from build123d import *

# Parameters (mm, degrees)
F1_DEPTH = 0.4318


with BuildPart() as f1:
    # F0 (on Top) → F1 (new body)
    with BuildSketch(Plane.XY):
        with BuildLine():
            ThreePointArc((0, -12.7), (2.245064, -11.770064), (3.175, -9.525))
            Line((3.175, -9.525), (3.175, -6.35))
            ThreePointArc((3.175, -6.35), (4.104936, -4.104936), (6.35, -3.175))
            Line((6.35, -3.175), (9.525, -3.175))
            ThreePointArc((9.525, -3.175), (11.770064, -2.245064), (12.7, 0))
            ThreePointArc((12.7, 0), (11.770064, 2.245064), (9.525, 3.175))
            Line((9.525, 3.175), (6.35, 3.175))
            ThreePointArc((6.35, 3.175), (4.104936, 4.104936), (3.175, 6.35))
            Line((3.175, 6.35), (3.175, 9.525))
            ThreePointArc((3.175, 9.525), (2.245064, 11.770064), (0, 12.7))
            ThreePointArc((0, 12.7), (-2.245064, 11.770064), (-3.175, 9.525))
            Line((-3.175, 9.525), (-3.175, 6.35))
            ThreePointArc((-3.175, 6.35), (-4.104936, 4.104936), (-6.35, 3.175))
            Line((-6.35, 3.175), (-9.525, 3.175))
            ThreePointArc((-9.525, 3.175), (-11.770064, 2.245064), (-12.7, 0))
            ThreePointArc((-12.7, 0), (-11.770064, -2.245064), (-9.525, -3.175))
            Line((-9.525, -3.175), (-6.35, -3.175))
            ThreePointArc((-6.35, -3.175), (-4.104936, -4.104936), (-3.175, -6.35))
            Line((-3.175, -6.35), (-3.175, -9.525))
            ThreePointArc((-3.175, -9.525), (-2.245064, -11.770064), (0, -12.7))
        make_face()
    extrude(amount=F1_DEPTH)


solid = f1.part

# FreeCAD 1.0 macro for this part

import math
import FreeCAD as App
import Part
import Sketcher
Q = App.Units.Quantity

doc = App.newDocument("Part")
body = doc.addObject("PartDesign::Body", "Body")

# Sketch on XY plane
sketch1 = body.newObject("Sketcher::SketchObject", "Sketch")
sketch1.AttachmentSupport = (doc.getObject("XY_Plane"), [""])
sketch1.MapMode = "FlatFace"
sketch1.addGeometry(Part.ArcOfCircle(Part.Circle(App.Vector(0, -9.5, 0), App.Vector(0, 0, 1), 3.2), math.radians(-90), math.radians(0)), False)
sketch1.addGeometry(Part.LineSegment(App.Vector(3.2, -9.5, 0), App.Vector(3.2, -6.3, 0)), False)
sketch1.addGeometry(Part.ArcOfCircle(Part.Circle(App.Vector(6.4, -6.4, 0), App.Vector(0, 0, 1), 3.2), math.radians(90), math.radians(180)), False)
sketch1.addGeometry(Part.LineSegment(App.Vector(6.3, -3.2, 0), App.Vector(9.5, -3.2, 0)), False)
sketch1.addGeometry(Part.ArcOfCircle(Part.Circle(App.Vector(9.5, 0, 0), App.Vector(0, 0, 1), 3.2), math.radians(-90), math.radians(0)), False)
sketch1.addGeometry(Part.ArcOfCircle(Part.Circle(App.Vector(9.5, 0, 0), App.Vector(0, 0, 1), 3.2), math.radians(0), math.radians(90)), False)
sketch1.addGeometry(Part.LineSegment(App.Vector(9.5, 3.2, 0), App.Vector(6.3, 3.2, 0)), False)
sketch1.addGeometry(Part.ArcOfCircle(Part.Circle(App.Vector(6.4, 6.4, 0), App.Vector(0, 0, 1), 3.2), math.radians(-180), math.radians(-90)), False)
sketch1.addGeometry(Part.LineSegment(App.Vector(3.2, 6.3, 0), App.Vector(3.2, 9.5, 0)), False)
sketch1.addGeometry(Part.ArcOfCircle(Part.Circle(App.Vector(0, 9.5, 0), App.Vector(0, 0, 1), 3.2), math.radians(0), math.radians(90)), False)
sketch1.addGeometry(Part.ArcOfCircle(Part.Circle(App.Vector(0, 9.5, 0), App.Vector(0, 0, 1), 3.2), math.radians(90), math.radians(180)), False)
sketch1.addGeometry(Part.LineSegment(App.Vector(-3.2, 9.5, 0), App.Vector(-3.2, 6.3, 0)), False)
sketch1.addGeometry(Part.ArcOfCircle(Part.Circle(App.Vector(-6.4, 6.4, 0), App.Vector(0, 0, 1), 3.2), math.radians(-90), math.radians(0)), False)
sketch1.addGeometry(Part.LineSegment(App.Vector(-6.3, 3.2, 0), App.Vector(-9.5, 3.2, 0)), False)
sketch1.addGeometry(Part.ArcOfCircle(Part.Circle(App.Vector(-9.5, 0, 0), App.Vector(0, 0, 1), 3.2), math.radians(90), math.radians(180)), False)
sketch1.addGeometry(Part.ArcOfCircle(Part.Circle(App.Vector(-9.5, 0, 0), App.Vector(0, 0, 1), 3.2), math.radians(-180), math.radians(-90)), False)
sketch1.addGeometry(Part.LineSegment(App.Vector(-9.5, -3.2, 0), App.Vector(-6.3, -3.2, 0)), False)
sketch1.addGeometry(Part.ArcOfCircle(Part.Circle(App.Vector(-6.4, -6.4, 0), App.Vector(0, 0, 1), 3.2), math.radians(0), math.radians(90)), False)
sketch1.addGeometry(Part.LineSegment(App.Vector(-3.2, -6.3, 0), App.Vector(-3.2, -9.5, 0)), False)
sketch1.addGeometry(Part.ArcOfCircle(Part.Circle(App.Vector(0, -9.5, 0), App.Vector(0, 0, 1), 3.2), math.radians(-180), math.radians(-90)), False)
sketch1.addConstraint(Sketcher.Constraint("Tangent", 0, 2, 1, 1))
sketch1.addConstraint(Sketcher.Constraint("Tangent", 1, 2, 2, 2))
sketch1.addConstraint(Sketcher.Constraint("Tangent", 2, 1, 3, 1))
sketch1.addConstraint(Sketcher.Constraint("Tangent", 3, 2, 4, 1))
sketch1.addConstraint(Sketcher.Constraint("Tangent", 4, 2, 5, 1))
sketch1.addConstraint(Sketcher.Constraint("Tangent", 5, 2, 6, 1))
sketch1.addConstraint(Sketcher.Constraint("Tangent", 6, 2, 7, 2))
sketch1.addConstraint(Sketcher.Constraint("Tangent", 7, 1, 8, 1))
sketch1.addConstraint(Sketcher.Constraint("Tangent", 8, 2, 9, 1))
sketch1.addConstraint(Sketcher.Constraint("Tangent", 9, 2, 10, 1))
sketch1.addConstraint(Sketcher.Constraint("Tangent", 10, 2, 11, 1))
sketch1.addConstraint(Sketcher.Constraint("Tangent", 11, 2, 12, 2))
sketch1.addConstraint(Sketcher.Constraint("Tangent", 12, 1, 13, 1))
sketch1.addConstraint(Sketcher.Constraint("Tangent", 13, 2, 14, 1))
sketch1.addConstraint(Sketcher.Constraint("Tangent", 14, 2, 15, 1))
sketch1.addConstraint(Sketcher.Constraint("Tangent", 15, 2, 16, 1))
sketch1.addConstraint(Sketcher.Constraint("Tangent", 16, 2, 17, 2))
sketch1.addConstraint(Sketcher.Constraint("Tangent", 17, 1, 18, 1))
sketch1.addConstraint(Sketcher.Constraint("Tangent", 18, 2, 19, 1))
sketch1.addConstraint(Sketcher.Constraint("Tangent", 19, 2, 0, 1))
sketch1.addConstraint(Sketcher.Constraint("Vertical", 1))
sketch1.addConstraint(Sketcher.Constraint("Horizontal", 3))
sketch1.addConstraint(Sketcher.Constraint("Horizontal", 6))
sketch1.addConstraint(Sketcher.Constraint("Vertical", 8))
sketch1.addConstraint(Sketcher.Constraint("Vertical", 11))
sketch1.addConstraint(Sketcher.Constraint("Horizontal", 13))
sketch1.addConstraint(Sketcher.Constraint("Horizontal", 16))
sketch1.addConstraint(Sketcher.Constraint("Vertical", 18))
sketch1.addConstraint(Sketcher.Constraint("Equal", 0, 2))
sketch1.addConstraint(Sketcher.Constraint("Equal", 2, 4))
sketch1.addConstraint(Sketcher.Constraint("Equal", 4, 5))
sketch1.addConstraint(Sketcher.Constraint("Equal", 5, 7))
sketch1.addConstraint(Sketcher.Constraint("Equal", 7, 9))
sketch1.addConstraint(Sketcher.Constraint("Equal", 9, 10))
sketch1.addConstraint(Sketcher.Constraint("Equal", 10, 12))
sketch1.addConstraint(Sketcher.Constraint("Equal", 12, 14))
sketch1.addConstraint(Sketcher.Constraint("Equal", 14, 15))
sketch1.addConstraint(Sketcher.Constraint("Equal", 15, 17))
sketch1.addConstraint(Sketcher.Constraint("Equal", 17, 19))
sketch1.addConstraint(Sketcher.Constraint("Symmetric", 0, 3, 9, 3, -1, 1))
sketch1.addConstraint(Sketcher.Constraint("Symmetric", 4, 3, 14, 3, -1, 1))
sketch1.addConstraint(Sketcher.Constraint("Symmetric", 7, 3, 12, 3, -2))
sketch1.addConstraint(Sketcher.Constraint("PointOnObject", 4, 2, -1))
sketch1.addConstraint(Sketcher.Constraint("PointOnObject", 9, 2, -2))
sketch1.addConstraint(Sketcher.Constraint("PointOnObject", 14, 2, -1))
sketch1.addConstraint(Sketcher.Constraint("PointOnObject", 19, 2, -2))
sketch1.addConstraint(Sketcher.Constraint("Equal", 16, 1))
sketch1.addConstraint(Sketcher.Constraint("Radius", 0, Q("0.125 in")))
sketch1.addConstraint(Sketcher.Constraint("DistanceX", -1, 1, 4, 2, Q("0.5 in")))
pad1 = body.newObject("PartDesign::Pad", "Pad")
pad1.Profile = sketch1
pad1.Length = Q("0.017 in")

doc.recompute()
